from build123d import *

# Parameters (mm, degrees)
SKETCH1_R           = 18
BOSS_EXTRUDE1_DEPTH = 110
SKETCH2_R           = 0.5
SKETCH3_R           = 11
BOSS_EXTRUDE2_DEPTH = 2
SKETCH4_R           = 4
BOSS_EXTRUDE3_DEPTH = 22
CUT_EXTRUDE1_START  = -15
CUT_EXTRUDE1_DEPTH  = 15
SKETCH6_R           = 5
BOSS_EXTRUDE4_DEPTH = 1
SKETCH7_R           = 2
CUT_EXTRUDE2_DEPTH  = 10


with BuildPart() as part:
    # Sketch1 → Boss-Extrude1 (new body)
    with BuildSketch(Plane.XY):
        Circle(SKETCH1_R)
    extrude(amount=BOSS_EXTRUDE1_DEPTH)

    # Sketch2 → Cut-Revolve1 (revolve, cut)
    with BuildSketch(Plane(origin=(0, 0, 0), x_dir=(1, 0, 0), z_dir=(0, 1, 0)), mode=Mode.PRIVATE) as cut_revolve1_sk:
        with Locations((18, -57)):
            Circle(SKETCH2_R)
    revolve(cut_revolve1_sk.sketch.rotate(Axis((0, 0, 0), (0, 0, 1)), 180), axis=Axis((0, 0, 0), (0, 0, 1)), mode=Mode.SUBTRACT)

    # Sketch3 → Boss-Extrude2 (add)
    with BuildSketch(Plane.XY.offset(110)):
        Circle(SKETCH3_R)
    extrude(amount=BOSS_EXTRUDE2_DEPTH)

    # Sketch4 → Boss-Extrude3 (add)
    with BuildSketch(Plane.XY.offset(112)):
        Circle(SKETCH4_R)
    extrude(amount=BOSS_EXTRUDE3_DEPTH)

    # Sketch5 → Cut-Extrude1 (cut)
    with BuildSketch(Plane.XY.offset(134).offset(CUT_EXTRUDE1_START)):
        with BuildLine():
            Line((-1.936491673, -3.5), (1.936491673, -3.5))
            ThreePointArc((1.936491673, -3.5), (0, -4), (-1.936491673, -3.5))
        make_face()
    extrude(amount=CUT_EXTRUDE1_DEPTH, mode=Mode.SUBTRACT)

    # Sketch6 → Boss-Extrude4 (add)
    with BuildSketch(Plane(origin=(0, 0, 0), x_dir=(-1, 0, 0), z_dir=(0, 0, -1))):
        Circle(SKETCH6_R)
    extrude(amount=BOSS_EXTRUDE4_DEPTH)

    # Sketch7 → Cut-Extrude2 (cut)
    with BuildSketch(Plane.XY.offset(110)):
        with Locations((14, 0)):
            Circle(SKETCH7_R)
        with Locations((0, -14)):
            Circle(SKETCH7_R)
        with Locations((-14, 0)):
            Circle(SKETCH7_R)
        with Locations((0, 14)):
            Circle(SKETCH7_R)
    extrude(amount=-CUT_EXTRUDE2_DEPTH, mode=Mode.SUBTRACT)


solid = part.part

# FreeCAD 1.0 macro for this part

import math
import FreeCAD as App
import Part
import Sketcher
from FreeCAD import Vector
Q = App.Units.Quantity

doc = App.newDocument("Part")
body = doc.addObject("PartDesign::Body", "Body")

sketch1 = body.newObject("Sketcher::SketchObject", "Sketch")
sketch1.AttachmentSupport = (doc.getObject("XY_Plane"), [""])
sketch1.MapMode = "FlatFace"
sketch1.addGeometry(Part.Circle(Vector(0, 0, 0), Vector(0, 0, 1), 18), False)
sketch1.addConstraint([
    Sketcher.Constraint("Coincident", 0, 3, -1, 1),
    Sketcher.Constraint("Diameter", 0, Q("36 mm")),
])
pad1 = body.newObject("PartDesign::Pad", "Pad")
pad1.Profile = sketch1
pad1.Length = 110

sketch2 = body.newObject("Sketcher::SketchObject", "Sketch001")
sketch2.AttachmentSupport = (doc.getObject("XZ_Plane"), [""])
sketch2.MapMode = "FlatFace"
sketch2.addGeometry(Part.Circle(Vector(18, 57, 0), Vector(0, 0, 1), 0.5), False)
sketch2.addConstraint([
    Sketcher.Constraint("Diameter", 0, Q("1 mm")),
    Sketcher.Constraint("DistanceX", -1, 1, 0, 3, Q("18 mm")),
    Sketcher.Constraint("DistanceY", -1, 1, 0, 3, Q("57 mm")),
])
groove = body.newObject("PartDesign::Groove", "Groove")
groove.Profile = sketch2
groove.ReferenceAxis = (sketch2, ["V_Axis"])
groove.Angle = 360

sketch3 = body.newObject("Sketcher::SketchObject", "Sketch002")
sketch3.AttachmentSupport = (doc.getObject("XY_Plane"), [""])
sketch3.MapMode = "FlatFace"
sketch3.AttachmentOffset = App.Placement(Vector(0, 0, 110), App.Rotation())
sketch3.addGeometry(Part.Circle(Vector(0, 0, 0), Vector(0, 0, 1), 11), False)
sketch3.addConstraint([
    Sketcher.Constraint("Coincident", 0, 3, -1, 1),
    Sketcher.Constraint("Diameter", 0, Q("22 mm")),
])
pad2 = body.newObject("PartDesign::Pad", "Pad001")
pad2.Profile = sketch3
pad2.Length = 2

sketch4 = body.newObject("Sketcher::SketchObject", "Sketch003")
sketch4.AttachmentSupport = (doc.getObject("XY_Plane"), [""])
sketch4.MapMode = "FlatFace"
sketch4.AttachmentOffset = App.Placement(Vector(0, 0, 112), App.Rotation())
sketch4.addGeometry(Part.Circle(Vector(0, 0, 0), Vector(0, 0, 1), 4), False)
sketch4.addConstraint([
    Sketcher.Constraint("Coincident", 0, 3, -1, 1),
    Sketcher.Constraint("Diameter", 0, Q("8 mm")),
])
pad3 = body.newObject("PartDesign::Pad", "Pad002")
pad3.Profile = sketch4
pad3.Length = 22

sketch5 = body.newObject("Sketcher::SketchObject", "Sketch004")
sketch5.AttachmentSupport = (doc.getObject("XY_Plane"), [""])
sketch5.MapMode = "FlatFace"
sketch5.AttachmentOffset = App.Placement(Vector(0, 0, 119), App.Rotation())
sketch5.addGeometry([
    Part.LineSegment(Vector(1.9, -3.5, 0), Vector(-1.9, -3.5, 0)),
    Part.ArcOfCircle(Part.Circle(Vector(0, 0, 0), Vector(0, 0, 1), 4), math.radians(-119), math.radians(-61)),
], False)
sketch5.addConstraint([
    Sketcher.Constraint("Coincident", 0, 1, 1, 2),
    Sketcher.Constraint("Coincident", 1, 1, 0, 2),
    Sketcher.Constraint("Horizontal", 0),
    Sketcher.Constraint("Coincident", 1, 3, -1, 1),
    Sketcher.Constraint("Radius", 1, Q("4 mm")),
    Sketcher.Constraint("DistanceY", 0, 1, -1, 1, Q("3.5 mm")),
])
pocket1 = body.newObject("PartDesign::Pocket", "Pocket")
pocket1.Profile = sketch5
pocket1.Length = 15
pocket1.Reversed = True

sketch6 = body.newObject("Sketcher::SketchObject", "Sketch005")
sketch6.AttachmentSupport = (doc.getObject("XY_Plane"), [""])
sketch6.MapMode = "FlatFace"
sketch6.addGeometry(Part.Circle(Vector(0, 0, 0), Vector(0, 0, 1), 5), False)
sketch6.addConstraint([
    Sketcher.Constraint("Coincident", 0, 3, -1, 1),
    Sketcher.Constraint("Diameter", 0, Q("10 mm")),
])
pad4 = body.newObject("PartDesign::Pad", "Pad003")
pad4.Profile = sketch6
pad4.Length = 1
pad4.Reversed = True

sketch7 = body.newObject("Sketcher::SketchObject", "Sketch006")
sketch7.AttachmentSupport = (doc.getObject("XY_Plane"), [""])
sketch7.MapMode = "FlatFace"
sketch7.AttachmentOffset = App.Placement(Vector(0, 0, 110), App.Rotation())
sketch7.addGeometry([
    Part.Circle(Vector(14, 0, 0), Vector(0, 0, 1), 2),
    Part.Circle(Vector(0, -14, 0), Vector(0, 0, 1), 2),
    Part.Circle(Vector(-14, 0, 0), Vector(0, 0, 1), 2),
    Part.Circle(Vector(0, 14, 0), Vector(0, 0, 1), 2),
], False)
sketch7.addConstraint([
    Sketcher.Constraint("Equal", 0, 1),
    Sketcher.Constraint("Equal", 1, 2),
    Sketcher.Constraint("Equal", 2, 3),
    Sketcher.Constraint("Symmetric", 0, 3, 2, 3, -1, 1),
    Sketcher.Constraint("Symmetric", 1, 3, 3, 3, -1, 1),
    Sketcher.Constraint("PointOnObject", 0, 3, -1),
    Sketcher.Constraint("PointOnObject", 1, 3, -2),
    Sketcher.Constraint("Diameter", 0, Q("4 mm")),
    Sketcher.Constraint("DistanceX", -1, 1, 0, 3, Q("14 mm")),
    Sketcher.Constraint("DistanceY", 1, 3, -1, 1, Q("14 mm")),
])
pocket2 = body.newObject("PartDesign::Pocket", "Pocket001")
pocket2.Profile = sketch7
pocket2.Length = 10

doc.recompute()
